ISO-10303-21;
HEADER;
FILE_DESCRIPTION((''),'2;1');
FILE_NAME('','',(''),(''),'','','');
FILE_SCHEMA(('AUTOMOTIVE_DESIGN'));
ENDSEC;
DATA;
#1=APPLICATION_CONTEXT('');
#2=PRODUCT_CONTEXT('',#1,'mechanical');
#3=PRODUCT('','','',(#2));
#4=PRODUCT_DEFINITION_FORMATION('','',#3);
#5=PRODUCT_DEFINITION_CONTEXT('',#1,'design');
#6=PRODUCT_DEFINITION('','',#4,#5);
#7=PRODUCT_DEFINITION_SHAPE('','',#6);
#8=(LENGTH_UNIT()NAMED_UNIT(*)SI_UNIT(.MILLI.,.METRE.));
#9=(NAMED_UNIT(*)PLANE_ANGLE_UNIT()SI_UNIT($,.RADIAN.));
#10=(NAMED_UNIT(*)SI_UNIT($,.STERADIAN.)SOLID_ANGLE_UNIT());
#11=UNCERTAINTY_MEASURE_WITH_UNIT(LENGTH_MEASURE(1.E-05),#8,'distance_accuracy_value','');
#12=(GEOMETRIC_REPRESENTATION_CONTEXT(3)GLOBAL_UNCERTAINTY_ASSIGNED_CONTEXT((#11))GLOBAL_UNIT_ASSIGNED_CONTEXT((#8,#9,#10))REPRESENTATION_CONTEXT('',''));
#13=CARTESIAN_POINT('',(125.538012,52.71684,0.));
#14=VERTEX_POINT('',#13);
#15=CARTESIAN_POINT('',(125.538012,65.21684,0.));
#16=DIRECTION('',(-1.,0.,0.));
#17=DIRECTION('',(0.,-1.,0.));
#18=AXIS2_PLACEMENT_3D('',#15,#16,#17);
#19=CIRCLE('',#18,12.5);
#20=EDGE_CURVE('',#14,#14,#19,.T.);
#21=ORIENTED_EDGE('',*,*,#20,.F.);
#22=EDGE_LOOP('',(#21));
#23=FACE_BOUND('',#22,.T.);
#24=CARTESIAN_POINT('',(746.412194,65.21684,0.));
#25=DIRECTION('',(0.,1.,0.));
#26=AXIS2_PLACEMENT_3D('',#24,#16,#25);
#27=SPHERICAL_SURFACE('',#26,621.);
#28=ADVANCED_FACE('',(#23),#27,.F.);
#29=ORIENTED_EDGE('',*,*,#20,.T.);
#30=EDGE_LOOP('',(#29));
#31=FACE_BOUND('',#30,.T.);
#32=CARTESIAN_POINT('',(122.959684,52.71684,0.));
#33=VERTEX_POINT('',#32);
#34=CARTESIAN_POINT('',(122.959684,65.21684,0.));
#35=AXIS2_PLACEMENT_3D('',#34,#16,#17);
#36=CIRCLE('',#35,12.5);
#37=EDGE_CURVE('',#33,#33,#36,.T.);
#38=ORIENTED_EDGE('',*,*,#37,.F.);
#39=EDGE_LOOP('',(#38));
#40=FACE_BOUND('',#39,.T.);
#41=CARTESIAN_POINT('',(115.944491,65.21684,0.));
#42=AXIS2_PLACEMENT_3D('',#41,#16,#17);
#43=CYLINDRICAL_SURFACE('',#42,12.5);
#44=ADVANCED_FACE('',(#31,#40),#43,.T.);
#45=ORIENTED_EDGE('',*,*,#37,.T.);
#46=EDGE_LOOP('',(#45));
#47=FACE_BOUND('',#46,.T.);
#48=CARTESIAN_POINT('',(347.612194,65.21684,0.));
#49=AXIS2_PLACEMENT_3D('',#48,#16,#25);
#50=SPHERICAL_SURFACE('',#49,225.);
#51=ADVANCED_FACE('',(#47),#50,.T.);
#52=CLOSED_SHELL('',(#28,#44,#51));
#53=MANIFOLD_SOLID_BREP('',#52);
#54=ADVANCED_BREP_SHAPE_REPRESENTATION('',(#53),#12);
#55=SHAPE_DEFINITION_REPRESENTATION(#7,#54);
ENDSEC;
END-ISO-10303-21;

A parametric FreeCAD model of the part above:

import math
import FreeCAD as App
import Part
import Sketcher

V = App.Vector
Q = App.Units.Quantity

doc = App.newDocument("Part")
params = doc.addObject("Spreadsheet::Sheet", "Params")
for row, (alias, value) in enumerate([
    ("sketch1_radius", "225 mm"),
    ("sketch1_radius2", "621 mm"),
    ("sketch1_width", "2.8 mm"),
    ("revolution_angle", "360 deg"),
], start=1):
    params.set(f"A{row}", alias)
    params.set(f"B{row}", "=" + value)
    params.setAlias(f"B{row}", alias)

body = doc.addObject("PartDesign::Body", "Body")

sketch1 = body.newObject("Sketcher::SketchObject", "Sketch")
sketch1.AttachmentSupport = (doc.getObject("XY_Plane"), [""])
sketch1.MapMode = "FlatFace"
sketch1.addGeometry([
    Part.LineSegment(V(125.5, 77.7, 0), V(123, 77.7, 0)),
    Part.ArcOfCircle(Part.Circle(V(347.6, 65.2, 0), V(0, 0, 1), 225), math.radians(176.82), math.radians(180)),
    Part.LineSegment(V(122.6, 65.2, 0), V(125.4, 65.2, 0)),
    Part.ArcOfCircle(Part.Circle(V(746.4, 65.2, 0), V(0, 0, 1), 621), math.radians(178.85), math.radians(180)),
], False)
sketch1.addGeometry(Part.LineSegment(V(122.6, 65.2, 0), V(746.4, 65.2, 0)), True)
sketch1.addConstraint([
    Sketcher.Constraint("Coincident", 0, 2, 1, 1),
    Sketcher.Constraint("Coincident", 1, 2, 2, 1),
    Sketcher.Constraint("Coincident", 2, 2, 3, 2),
    Sketcher.Constraint("Coincident", 3, 1, 0, 1),
    Sketcher.Constraint("Horizontal", 0),
    Sketcher.Constraint("Horizontal", 2),
    Sketcher.Constraint("Horizontal", 4),
    Sketcher.Constraint("Coincident", 4, 1, 1, 2),
    Sketcher.Constraint("Coincident", 4, 2, 3, 3),
    Sketcher.Constraint("Horizontal", 1, 3, 3, 3),
    Sketcher.Constraint("Radius", 1, Q("225 mm")),
    Sketcher.Constraint("Radius", 3, Q("621 mm")),
    Sketcher.Constraint("DistanceX", 2, 1, 2, 2, Q("2.8 mm")),
    Sketcher.Constraint("DistanceY", 1, 3, 0, 2, Q("12.5 mm")),
    Sketcher.Constraint("DistanceY", -1, 1, 1, 3, Q("65.21684 mm")),
    Sketcher.Constraint("DistanceX", -1, 1, 3, 1, Q("125.538012 mm")),
])
sketch1.setExpression("Constraints[10]", "Params.sketch1_radius")
sketch1.setExpression("Constraints[11]", "Params.sketch1_radius2")
sketch1.setExpression("Constraints[12]", "Params.sketch1_width")
revolution = body.newObject("PartDesign::Revolution", "Revolution")
revolution.Profile = sketch1
revolution.ReferenceAxis = (sketch1, ["Axis0"])
revolution.setExpression("Angle", "Params.revolution_angle")

doc.recompute()
